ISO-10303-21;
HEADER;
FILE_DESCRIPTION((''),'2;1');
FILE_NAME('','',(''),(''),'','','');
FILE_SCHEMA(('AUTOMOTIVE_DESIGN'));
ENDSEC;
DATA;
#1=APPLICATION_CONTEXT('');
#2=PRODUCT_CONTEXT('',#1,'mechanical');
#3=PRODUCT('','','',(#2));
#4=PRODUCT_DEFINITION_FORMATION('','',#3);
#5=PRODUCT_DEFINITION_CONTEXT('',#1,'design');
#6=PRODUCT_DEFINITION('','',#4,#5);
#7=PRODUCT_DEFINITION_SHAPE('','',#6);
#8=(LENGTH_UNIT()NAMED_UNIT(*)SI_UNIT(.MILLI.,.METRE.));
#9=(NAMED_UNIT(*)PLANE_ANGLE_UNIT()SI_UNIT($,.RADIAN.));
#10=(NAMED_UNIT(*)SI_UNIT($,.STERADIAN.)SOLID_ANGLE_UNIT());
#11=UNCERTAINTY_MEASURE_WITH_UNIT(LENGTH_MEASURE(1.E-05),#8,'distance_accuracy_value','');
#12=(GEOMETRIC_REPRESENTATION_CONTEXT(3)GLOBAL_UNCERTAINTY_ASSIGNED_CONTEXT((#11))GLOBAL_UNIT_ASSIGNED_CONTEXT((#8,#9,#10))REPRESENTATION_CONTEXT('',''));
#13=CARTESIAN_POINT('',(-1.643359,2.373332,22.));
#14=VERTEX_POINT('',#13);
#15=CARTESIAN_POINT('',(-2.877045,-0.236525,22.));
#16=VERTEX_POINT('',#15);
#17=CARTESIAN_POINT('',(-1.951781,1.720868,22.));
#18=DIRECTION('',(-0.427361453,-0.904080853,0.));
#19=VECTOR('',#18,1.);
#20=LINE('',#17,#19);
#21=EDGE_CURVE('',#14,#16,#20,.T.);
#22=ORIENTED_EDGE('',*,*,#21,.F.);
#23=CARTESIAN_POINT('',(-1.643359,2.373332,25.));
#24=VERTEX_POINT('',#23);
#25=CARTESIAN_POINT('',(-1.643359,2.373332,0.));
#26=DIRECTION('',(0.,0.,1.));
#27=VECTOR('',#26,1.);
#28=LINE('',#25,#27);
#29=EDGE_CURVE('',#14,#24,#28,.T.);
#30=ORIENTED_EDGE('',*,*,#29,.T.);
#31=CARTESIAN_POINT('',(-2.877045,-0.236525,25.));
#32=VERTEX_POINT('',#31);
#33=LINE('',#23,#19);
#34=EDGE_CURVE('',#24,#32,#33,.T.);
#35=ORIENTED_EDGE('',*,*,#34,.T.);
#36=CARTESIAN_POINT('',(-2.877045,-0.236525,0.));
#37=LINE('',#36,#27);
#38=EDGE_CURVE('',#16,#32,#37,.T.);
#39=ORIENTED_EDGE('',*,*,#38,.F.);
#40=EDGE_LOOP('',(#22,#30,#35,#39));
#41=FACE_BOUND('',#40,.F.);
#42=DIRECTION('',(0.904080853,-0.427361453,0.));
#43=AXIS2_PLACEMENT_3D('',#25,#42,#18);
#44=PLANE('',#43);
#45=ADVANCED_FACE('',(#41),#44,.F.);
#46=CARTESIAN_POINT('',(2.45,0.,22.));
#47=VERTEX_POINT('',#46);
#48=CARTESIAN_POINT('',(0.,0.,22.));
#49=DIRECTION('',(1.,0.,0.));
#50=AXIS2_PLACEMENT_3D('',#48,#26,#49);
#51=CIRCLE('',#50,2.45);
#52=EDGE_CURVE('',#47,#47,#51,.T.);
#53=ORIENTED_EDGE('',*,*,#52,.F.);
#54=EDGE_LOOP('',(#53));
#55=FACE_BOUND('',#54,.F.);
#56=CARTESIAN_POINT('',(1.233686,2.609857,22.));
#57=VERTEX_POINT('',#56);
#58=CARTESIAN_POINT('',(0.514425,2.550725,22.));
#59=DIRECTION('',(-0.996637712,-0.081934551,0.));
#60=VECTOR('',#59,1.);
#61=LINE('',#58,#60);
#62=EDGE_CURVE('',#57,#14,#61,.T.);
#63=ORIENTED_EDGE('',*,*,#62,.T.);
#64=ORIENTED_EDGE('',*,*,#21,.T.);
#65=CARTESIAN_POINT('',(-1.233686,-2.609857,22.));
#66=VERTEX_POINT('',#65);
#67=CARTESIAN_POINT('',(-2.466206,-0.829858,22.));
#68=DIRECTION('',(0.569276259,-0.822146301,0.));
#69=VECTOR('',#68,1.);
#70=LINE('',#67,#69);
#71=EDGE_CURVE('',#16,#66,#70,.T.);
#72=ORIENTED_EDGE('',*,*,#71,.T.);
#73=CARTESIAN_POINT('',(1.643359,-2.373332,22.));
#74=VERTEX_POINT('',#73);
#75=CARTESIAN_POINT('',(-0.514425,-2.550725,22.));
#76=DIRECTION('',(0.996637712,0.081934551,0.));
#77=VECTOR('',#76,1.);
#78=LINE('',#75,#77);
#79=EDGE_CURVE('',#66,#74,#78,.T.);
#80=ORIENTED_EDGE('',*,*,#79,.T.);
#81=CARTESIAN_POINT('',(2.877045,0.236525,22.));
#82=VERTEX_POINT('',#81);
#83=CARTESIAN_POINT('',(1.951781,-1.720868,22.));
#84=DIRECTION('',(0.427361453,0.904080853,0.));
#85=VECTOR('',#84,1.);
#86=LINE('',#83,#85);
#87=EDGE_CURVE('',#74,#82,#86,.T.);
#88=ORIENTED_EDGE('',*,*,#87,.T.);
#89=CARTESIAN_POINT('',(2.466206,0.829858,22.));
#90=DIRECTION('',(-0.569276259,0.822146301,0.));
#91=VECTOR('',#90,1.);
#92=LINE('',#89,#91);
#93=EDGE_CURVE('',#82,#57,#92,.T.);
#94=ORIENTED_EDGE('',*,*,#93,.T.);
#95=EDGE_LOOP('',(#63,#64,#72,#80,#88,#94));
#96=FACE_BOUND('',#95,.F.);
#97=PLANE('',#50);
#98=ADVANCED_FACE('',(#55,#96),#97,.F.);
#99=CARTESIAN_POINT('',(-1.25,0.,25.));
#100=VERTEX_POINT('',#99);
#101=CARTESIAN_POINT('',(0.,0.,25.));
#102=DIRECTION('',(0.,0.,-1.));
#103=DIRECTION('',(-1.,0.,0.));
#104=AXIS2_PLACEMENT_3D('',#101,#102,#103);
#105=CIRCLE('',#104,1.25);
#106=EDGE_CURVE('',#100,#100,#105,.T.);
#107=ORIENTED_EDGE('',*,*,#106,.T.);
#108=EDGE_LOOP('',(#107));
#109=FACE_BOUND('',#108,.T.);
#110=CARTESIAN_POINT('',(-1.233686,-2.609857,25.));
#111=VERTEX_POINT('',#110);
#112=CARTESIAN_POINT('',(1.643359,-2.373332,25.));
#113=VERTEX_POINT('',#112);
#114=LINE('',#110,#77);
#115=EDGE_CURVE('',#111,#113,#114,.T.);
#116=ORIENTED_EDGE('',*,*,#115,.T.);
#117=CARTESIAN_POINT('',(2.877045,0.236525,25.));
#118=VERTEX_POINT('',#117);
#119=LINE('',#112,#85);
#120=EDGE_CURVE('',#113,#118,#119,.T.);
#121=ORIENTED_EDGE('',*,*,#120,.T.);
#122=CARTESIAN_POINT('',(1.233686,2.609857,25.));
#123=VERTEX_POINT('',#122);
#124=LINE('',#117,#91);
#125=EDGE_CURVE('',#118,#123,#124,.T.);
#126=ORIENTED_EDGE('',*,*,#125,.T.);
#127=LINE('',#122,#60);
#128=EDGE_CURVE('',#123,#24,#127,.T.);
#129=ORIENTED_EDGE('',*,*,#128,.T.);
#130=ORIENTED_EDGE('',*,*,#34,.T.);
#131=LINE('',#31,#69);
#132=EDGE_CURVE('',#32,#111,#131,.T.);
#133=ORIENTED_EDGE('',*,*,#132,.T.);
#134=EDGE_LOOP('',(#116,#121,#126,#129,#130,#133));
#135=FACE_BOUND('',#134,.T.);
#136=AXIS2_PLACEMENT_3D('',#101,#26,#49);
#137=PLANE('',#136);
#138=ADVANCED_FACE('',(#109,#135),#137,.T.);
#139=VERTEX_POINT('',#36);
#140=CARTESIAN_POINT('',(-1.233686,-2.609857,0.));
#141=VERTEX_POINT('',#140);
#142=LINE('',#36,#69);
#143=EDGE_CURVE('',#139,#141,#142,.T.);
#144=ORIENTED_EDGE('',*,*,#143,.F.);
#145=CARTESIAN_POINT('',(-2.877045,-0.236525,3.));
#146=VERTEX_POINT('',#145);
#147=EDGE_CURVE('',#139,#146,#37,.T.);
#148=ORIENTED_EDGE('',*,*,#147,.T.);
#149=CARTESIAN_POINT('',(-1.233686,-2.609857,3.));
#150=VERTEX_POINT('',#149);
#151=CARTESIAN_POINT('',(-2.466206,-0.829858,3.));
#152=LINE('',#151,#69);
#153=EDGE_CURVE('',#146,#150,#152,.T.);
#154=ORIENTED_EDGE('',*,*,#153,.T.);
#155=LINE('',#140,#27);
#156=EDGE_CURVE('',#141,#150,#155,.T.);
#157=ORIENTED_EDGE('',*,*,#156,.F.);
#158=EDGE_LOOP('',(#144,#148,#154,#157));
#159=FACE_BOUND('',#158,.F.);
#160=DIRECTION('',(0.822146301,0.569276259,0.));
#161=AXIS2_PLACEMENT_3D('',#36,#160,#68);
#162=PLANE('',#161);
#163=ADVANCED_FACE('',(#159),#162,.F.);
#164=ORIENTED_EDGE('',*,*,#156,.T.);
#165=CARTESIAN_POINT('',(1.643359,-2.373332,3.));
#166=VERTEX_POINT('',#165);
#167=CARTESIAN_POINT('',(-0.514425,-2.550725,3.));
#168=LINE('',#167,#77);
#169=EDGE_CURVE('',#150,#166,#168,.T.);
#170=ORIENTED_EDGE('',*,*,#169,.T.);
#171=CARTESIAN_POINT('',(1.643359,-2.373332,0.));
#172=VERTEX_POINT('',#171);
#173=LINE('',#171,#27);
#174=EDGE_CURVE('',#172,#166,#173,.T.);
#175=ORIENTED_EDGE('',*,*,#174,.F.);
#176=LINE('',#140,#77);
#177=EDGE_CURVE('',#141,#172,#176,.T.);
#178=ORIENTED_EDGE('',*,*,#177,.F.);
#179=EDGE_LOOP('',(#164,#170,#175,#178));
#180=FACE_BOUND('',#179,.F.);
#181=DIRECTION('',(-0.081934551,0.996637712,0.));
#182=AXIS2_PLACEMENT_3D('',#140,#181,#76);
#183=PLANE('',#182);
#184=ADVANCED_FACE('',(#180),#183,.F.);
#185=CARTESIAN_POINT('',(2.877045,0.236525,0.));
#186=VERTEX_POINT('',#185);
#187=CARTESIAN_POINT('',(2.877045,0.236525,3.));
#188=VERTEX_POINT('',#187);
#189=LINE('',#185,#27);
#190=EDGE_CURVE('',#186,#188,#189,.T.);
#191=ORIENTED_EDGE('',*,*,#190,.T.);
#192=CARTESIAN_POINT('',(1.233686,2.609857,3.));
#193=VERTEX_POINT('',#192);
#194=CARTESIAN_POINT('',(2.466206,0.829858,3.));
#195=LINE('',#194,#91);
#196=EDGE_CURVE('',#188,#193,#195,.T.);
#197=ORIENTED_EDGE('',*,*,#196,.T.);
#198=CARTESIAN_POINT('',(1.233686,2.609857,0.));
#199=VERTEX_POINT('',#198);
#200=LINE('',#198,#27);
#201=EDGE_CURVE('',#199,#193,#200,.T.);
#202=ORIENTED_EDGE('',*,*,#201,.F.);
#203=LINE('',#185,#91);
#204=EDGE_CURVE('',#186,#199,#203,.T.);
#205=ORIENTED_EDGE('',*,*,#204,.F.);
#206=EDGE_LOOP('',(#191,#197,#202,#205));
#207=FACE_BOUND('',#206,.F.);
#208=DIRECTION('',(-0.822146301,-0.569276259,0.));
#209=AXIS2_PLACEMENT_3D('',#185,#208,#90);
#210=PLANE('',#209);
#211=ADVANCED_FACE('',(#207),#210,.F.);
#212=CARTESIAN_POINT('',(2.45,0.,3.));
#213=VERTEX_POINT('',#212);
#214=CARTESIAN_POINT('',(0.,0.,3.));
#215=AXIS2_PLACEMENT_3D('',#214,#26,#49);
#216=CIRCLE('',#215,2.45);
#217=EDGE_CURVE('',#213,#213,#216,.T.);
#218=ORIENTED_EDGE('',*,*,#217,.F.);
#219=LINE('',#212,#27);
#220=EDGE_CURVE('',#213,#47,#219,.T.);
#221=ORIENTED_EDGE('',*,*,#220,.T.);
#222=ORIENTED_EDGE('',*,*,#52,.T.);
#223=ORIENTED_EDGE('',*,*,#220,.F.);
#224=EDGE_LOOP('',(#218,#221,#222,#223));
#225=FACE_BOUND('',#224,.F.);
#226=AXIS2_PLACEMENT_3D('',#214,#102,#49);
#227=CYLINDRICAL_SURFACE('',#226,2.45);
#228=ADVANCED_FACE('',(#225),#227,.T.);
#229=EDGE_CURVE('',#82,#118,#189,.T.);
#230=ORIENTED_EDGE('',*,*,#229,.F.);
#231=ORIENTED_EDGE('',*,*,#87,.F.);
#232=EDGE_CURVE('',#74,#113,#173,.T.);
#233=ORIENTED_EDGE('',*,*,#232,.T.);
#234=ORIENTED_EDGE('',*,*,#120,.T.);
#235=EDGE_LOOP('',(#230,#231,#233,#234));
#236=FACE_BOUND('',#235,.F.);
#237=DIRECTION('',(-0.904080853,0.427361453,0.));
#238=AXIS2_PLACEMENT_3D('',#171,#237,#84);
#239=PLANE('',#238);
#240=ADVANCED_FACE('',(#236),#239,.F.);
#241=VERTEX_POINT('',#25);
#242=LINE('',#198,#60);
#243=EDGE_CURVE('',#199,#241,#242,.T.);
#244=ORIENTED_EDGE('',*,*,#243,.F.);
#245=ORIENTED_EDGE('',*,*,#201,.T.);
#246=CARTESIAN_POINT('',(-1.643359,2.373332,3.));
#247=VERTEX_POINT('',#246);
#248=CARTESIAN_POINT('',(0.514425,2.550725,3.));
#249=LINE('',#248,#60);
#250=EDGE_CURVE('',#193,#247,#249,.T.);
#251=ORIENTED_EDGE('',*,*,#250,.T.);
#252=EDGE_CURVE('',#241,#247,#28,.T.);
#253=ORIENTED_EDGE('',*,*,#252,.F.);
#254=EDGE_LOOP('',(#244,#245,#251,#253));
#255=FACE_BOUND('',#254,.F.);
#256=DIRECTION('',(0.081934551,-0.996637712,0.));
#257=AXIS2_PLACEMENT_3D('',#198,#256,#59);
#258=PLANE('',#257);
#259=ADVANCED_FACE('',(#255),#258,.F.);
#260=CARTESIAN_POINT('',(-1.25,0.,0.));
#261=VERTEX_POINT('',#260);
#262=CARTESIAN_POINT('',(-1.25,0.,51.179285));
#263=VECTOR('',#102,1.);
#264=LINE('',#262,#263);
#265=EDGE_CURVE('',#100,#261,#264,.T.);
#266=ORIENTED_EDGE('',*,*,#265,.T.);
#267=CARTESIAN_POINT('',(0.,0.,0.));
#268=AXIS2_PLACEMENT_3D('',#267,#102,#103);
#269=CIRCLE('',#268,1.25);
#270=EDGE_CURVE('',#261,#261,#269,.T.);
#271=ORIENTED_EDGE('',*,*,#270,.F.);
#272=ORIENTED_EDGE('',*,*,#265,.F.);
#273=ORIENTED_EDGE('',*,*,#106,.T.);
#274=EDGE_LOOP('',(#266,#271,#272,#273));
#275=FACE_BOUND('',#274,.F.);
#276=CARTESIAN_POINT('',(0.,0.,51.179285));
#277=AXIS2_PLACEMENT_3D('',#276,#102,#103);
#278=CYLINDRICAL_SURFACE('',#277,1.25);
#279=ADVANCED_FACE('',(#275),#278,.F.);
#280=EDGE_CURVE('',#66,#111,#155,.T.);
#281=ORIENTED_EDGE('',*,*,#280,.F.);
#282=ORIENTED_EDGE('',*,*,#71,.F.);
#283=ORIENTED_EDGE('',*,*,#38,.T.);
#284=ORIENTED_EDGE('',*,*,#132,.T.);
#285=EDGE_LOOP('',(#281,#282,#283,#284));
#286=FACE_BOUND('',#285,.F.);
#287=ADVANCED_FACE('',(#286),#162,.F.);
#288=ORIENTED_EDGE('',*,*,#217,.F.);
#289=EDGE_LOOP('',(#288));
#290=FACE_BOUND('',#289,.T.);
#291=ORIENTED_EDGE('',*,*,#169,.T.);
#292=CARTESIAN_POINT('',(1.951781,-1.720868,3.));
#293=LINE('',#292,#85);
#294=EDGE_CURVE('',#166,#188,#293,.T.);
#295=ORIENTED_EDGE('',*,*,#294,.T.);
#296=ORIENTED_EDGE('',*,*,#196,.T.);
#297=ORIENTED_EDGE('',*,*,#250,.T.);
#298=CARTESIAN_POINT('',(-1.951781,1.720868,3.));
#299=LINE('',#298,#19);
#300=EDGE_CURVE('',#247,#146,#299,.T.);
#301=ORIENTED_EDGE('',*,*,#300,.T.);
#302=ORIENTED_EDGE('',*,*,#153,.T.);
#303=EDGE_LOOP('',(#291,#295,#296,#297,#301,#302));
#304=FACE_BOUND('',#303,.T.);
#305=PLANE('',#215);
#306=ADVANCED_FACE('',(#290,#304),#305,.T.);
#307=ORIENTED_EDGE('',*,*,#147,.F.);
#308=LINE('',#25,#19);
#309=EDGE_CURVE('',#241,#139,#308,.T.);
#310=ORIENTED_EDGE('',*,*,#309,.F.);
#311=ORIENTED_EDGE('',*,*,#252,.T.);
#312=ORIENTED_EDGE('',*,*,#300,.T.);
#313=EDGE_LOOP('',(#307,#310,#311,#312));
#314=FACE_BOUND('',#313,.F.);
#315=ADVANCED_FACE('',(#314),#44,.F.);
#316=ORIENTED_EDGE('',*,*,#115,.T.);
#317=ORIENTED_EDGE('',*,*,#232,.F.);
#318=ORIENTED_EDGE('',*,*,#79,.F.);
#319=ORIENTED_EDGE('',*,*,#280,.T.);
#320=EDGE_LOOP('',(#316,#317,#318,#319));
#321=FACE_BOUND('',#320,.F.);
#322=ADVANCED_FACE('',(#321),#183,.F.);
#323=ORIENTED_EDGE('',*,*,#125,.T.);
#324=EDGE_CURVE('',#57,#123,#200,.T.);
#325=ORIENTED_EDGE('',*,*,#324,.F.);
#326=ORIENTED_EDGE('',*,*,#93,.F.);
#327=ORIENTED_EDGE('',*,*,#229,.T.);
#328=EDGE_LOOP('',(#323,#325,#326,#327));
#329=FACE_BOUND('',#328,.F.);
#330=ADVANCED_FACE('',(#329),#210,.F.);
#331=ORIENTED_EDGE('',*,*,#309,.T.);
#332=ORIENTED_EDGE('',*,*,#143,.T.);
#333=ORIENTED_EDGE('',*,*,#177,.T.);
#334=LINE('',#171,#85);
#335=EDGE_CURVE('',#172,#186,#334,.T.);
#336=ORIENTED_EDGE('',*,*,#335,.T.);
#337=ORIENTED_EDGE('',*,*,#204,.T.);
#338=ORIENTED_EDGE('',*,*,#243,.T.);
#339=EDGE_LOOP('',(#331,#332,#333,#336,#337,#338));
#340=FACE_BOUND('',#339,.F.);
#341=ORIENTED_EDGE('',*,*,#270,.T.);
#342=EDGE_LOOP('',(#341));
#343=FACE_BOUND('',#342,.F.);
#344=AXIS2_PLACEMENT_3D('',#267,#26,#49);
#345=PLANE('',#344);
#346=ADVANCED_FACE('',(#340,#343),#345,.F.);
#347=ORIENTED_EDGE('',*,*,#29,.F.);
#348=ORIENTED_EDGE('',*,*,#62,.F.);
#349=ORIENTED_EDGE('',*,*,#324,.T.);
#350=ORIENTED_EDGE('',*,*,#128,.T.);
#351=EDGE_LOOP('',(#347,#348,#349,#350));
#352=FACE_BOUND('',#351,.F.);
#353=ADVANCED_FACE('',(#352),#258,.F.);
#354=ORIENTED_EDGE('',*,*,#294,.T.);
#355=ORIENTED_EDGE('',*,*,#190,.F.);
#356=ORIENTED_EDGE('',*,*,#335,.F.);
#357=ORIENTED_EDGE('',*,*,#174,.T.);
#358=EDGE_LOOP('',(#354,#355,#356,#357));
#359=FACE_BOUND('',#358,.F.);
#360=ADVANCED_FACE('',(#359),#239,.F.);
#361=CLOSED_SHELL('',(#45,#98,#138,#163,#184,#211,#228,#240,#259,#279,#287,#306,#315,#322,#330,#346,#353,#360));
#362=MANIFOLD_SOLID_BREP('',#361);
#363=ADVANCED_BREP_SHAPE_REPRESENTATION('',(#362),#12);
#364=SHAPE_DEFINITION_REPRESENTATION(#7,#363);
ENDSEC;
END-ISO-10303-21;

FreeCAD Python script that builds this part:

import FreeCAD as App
import Part
import Sketcher
from FreeCAD import Vector

doc = App.newDocument("Part")
body = doc.addObject("PartDesign::Body", "Body")

# Sketch on XY plane
sketch1 = body.newObject("Sketcher::SketchObject", "Sketch")
sketch1.AttachmentSupport = (doc.getObject("XY_Plane"), [""])
sketch1.MapMode = "FlatFace"
sketch1.addGeometry([
    Part.LineSegment(Vector(1.6, -2.4, 0), Vector(2.9, 0.2, 0)),  # 0
    Part.LineSegment(Vector(2.9, 0.2, 0), Vector(1.2, 2.6, 0)),  # 1
    Part.LineSegment(Vector(1.2, 2.6, 0), Vector(-1.6, 2.4, 0)),  # 2
    Part.LineSegment(Vector(-1.6, 2.4, 0), Vector(-2.9, -0.2, 0)),  # 3
    Part.LineSegment(Vector(-2.9, -0.2, 0), Vector(-1.2, -2.6, 0)),  # 4
    Part.LineSegment(Vector(-1.2, -2.6, 0), Vector(1.6, -2.4, 0)),  # 5
], False)
sketch1.addConstraint([
    Sketcher.Constraint("Coincident", 0, 2, 1, 1),
    Sketcher.Constraint("Coincident", 1, 2, 2, 1),
    Sketcher.Constraint("Coincident", 2, 2, 3, 1),
    Sketcher.Constraint("Coincident", 3, 2, 4, 1),
    Sketcher.Constraint("Coincident", 4, 2, 5, 1),
    Sketcher.Constraint("Coincident", 5, 2, 0, 1),
    Sketcher.Constraint("Symmetric", 0, 2, 3, 2, -1, 1),
    Sketcher.Constraint("Symmetric", 1, 2, 4, 2, -1, 1),
    Sketcher.Constraint("Symmetric", 2, 2, 5, 2, -1, 1),
    Sketcher.Constraint("Equal", 0, 1),
    Sketcher.Constraint("Equal", 1, 2),
    Sketcher.Constraint("Distance", 0, 2.886751),
    Sketcher.Constraint("DistanceX", 2, 2, -1, 1, 1.643359),
    Sketcher.Constraint("DistanceY", -1, 1, 2, 2, 2.373332),
    Sketcher.Constraint("DistanceX", 1, 2, 0, 2, 1.643359),
])
pad1 = body.newObject("PartDesign::Pad", "Pad")
pad1.Profile = sketch1
pad1.Length = 25

# Sketch on XY plane
sketch2 = body.newObject("Sketcher::SketchObject", "Sketch001")
sketch2.AttachmentSupport = (doc.getObject("XY_Plane"), [""])
sketch2.MapMode = "FlatFace"
sketch2.AttachmentOffset = App.Placement(Vector(0, 0, 25), App.Rotation())
sketch2.addGeometry(Part.Circle(Vector(0, 0, 0), Vector(0, 0, 1), 1.2), False)
sketch2.addConstraint([
    Sketcher.Constraint("Coincident", 0, 3, -1, 1),
    Sketcher.Constraint("Diameter", 0, 2.5),
])
doc.recompute()
hole = body.newObject("PartDesign::Hole", "Hole")
hole.Profile = sketch2
hole.ThreadType = "None"
hole.Diameter = 2.5
hole.DepthType = "ThroughAll"
body2 = doc.addObject("PartDesign::Body", "Body001")

# Sketch on XY plane
sketch3 = body2.newObject("Sketcher::SketchObject", "Sketch002")
sketch3.AttachmentSupport = (doc.getObject("XY_Plane001"), [""])
sketch3.MapMode = "FlatFace"
sketch3.AttachmentOffset = App.Placement(Vector(0, 0, 3), App.Rotation())
sketch3.addGeometry([
    Part.Circle(Vector(0, 0, 0), Vector(0, 0, 1), 12.8),
    Part.Circle(Vector(0, 0, 0), Vector(0, 0, 1), 2.5),
], False)
sketch3.addConstraint([
    Sketcher.Constraint("Coincident", 0, 3, -1, 1),
    Sketcher.Constraint("Coincident", 1, 3, -1, 1),
    Sketcher.Constraint("Diameter", 1, 4.9),
    Sketcher.Constraint("Diameter", 0, 25.602485),
])
pad2 = body2.newObject("PartDesign::Pad", "Pad001")
pad2.Profile = sketch3
pad2.Length = 19
doc.recompute()

boolean = body.newObject("PartDesign::Boolean", "Boolean")
boolean.Type = "Cut"
boolean.addObjects([body2])

doc.recompute()
